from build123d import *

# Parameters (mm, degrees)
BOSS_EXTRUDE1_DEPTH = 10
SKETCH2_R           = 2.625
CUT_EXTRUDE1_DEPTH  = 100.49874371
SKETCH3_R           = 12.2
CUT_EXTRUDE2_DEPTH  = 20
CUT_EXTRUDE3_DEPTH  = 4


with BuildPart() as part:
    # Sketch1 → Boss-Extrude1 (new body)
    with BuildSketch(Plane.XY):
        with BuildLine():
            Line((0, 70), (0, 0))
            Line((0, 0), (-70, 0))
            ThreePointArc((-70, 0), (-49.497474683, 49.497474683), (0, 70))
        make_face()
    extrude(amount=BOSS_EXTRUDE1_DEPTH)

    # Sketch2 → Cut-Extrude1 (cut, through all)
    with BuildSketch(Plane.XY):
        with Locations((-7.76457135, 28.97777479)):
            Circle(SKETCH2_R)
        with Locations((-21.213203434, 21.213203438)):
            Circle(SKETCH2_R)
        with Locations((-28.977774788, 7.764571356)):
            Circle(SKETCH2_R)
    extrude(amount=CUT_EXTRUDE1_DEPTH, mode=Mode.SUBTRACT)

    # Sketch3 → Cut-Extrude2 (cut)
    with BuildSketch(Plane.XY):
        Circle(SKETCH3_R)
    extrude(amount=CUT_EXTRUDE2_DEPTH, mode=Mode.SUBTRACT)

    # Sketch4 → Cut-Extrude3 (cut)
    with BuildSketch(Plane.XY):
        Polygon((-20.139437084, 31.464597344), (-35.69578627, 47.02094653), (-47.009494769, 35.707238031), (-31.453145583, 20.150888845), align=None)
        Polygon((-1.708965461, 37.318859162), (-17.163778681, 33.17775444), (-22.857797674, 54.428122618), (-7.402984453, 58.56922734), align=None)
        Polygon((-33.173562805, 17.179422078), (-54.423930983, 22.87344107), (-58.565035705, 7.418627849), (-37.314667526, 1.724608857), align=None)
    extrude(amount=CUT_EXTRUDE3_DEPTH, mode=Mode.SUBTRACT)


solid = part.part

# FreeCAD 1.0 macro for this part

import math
import FreeCAD as App
import Part
import Sketcher
from FreeCAD import Vector
Q = App.Units.Quantity

doc = App.newDocument("Part")
body = doc.addObject("PartDesign::Body", "Body")

# Sketch on XY plane
sketch1 = body.newObject("Sketcher::SketchObject", "Sketch")
sketch1.AttachmentSupport = (doc.getObject("XY_Plane"), [""])
sketch1.MapMode = "FlatFace"
sketch1.addGeometry([
    Part.LineSegment(Vector(0, 0, 0), Vector(0, 70, 0)),
    Part.ArcOfCircle(Part.Circle(Vector(0, 0, 0), Vector(0, 0, 1), 70), math.radians(90), math.radians(180)),
    Part.LineSegment(Vector(-70, 0, 0), Vector(0, 0, 0)),
], False)
sketch1.addConstraint([
    Sketcher.Constraint("Coincident", 0, 2, 1, 1),
    Sketcher.Constraint("Coincident", 1, 2, 2, 1),
    Sketcher.Constraint("Coincident", 2, 2, 0, 1),
    Sketcher.Constraint("Vertical", 0),
    Sketcher.Constraint("Horizontal", 2),
    Sketcher.Constraint("Coincident", 1, 3, -1, 1),
    Sketcher.Constraint("Coincident", 2, 2, -1, 1),
    Sketcher.Constraint("Radius", 1, 70.0),
])
pad1 = body.newObject("PartDesign::Pad", "Pad")
pad1.Profile = sketch1
pad1.Length = 10

# Sketch on XY plane
sketch2 = body.newObject("Sketcher::SketchObject", "Sketch001")
sketch2.AttachmentSupport = (doc.getObject("XY_Plane"), [""])
sketch2.MapMode = "FlatFace"
sketch2.addGeometry([
    Part.Circle(Vector(-7.764571, 28.977775, 0), Vector(0, 0, 1), 2.625),
    Part.Circle(Vector(-21.213203, 21.213203, 0), Vector(0, 0, 1), 2.625),
    Part.Circle(Vector(-28.977775, 7.764571, 0), Vector(0, 0, 1), 2.625),
], False)
sketch2.addConstraint([
    Sketcher.Constraint("Equal", 0, 1),
    Sketcher.Constraint("Equal", 1, 2),
    Sketcher.Constraint("Diameter", 0, 5.25),
    Sketcher.Constraint("DistanceX", 0, 3, -1, 1, 7.764571),
    Sketcher.Constraint("DistanceY", -1, 1, 2, 3, 7.764571),
    Sketcher.Constraint("DistanceY", 1, 3, 0, 3, 7.764571),
    Sketcher.Constraint("DistanceX", 2, 3, 1, 3, 7.764571),
    Sketcher.Constraint("DistanceY", -1, 1, 0, 3, 28.977775),
    Sketcher.Constraint("DistanceX", 1, 3, -1, 1, 21.213203),
])
pocket1 = body.newObject("PartDesign::Pocket", "Pocket")
pocket1.Profile = sketch2
pocket1.Type = "ThroughAll"
pocket1.Reversed = True

# Sketch on XY plane
sketch3 = body.newObject("Sketcher::SketchObject", "Sketch002")
sketch3.AttachmentSupport = (doc.getObject("XY_Plane"), [""])
sketch3.MapMode = "FlatFace"
sketch3.addGeometry(Part.Circle(Vector(0, 0, 0), Vector(0, 0, 1), 12.2), False)
sketch3.addConstraint([
    Sketcher.Constraint("Coincident", 0, 3, -1, 1),
    Sketcher.Constraint("Diameter", 0, 24.4),
])
pocket2 = body.newObject("PartDesign::Pocket", "Pocket001")
pocket2.Profile = sketch3
pocket2.Length = 20
pocket2.Reversed = True

# Sketch on XY plane
sketch4 = body.newObject("Sketcher::SketchObject", "Sketch003")
sketch4.AttachmentSupport = (doc.getObject("XY_Plane"), [""])
sketch4.MapMode = "FlatFace"
sketch4.addGeometry([
    Part.LineSegment(Vector(-20.139437, 31.464597, 0), Vector(-35.695786, 47.020947, 0)),  # 0
    Part.LineSegment(Vector(-35.695786, 47.020947, 0), Vector(-47.009495, 35.707238, 0)),  # 1
    Part.LineSegment(Vector(-47.009495, 35.707238, 0), Vector(-31.453146, 20.150889, 0)),  # 2
    Part.LineSegment(Vector(-31.453146, 20.150889, 0), Vector(-20.139437, 31.464597, 0)),  # 3
    Part.LineSegment(Vector(-17.163779, 33.177754, 0), Vector(-1.708965, 37.318859, 0)),  # 4
    Part.LineSegment(Vector(-1.708965, 37.318859, 0), Vector(-7.402984, 58.569227, 0)),  # 5
    Part.LineSegment(Vector(-7.402984, 58.569227, 0), Vector(-22.857798, 54.428123, 0)),  # 6
    Part.LineSegment(Vector(-22.857798, 54.428123, 0), Vector(-17.163779, 33.177754, 0)),  # 7
    Part.LineSegment(Vector(-33.173563, 17.179422, 0), Vector(-54.423931, 22.873441, 0)),  # 8
    Part.LineSegment(Vector(-54.423931, 22.873441, 0), Vector(-58.565036, 7.418628, 0)),  # 9
    Part.LineSegment(Vector(-58.565036, 7.418628, 0), Vector(-37.314668, 1.724609, 0)),  # 10
    Part.LineSegment(Vector(-37.314668, 1.724609, 0), Vector(-33.173563, 17.179422, 0)),  # 11
], False)
sketch4.addConstraint([
    Sketcher.Constraint("Coincident", 0, 2, 1, 1),
    Sketcher.Constraint("Coincident", 1, 2, 2, 1),
    Sketcher.Constraint("Coincident", 2, 2, 3, 1),
    Sketcher.Constraint("Coincident", 3, 2, 0, 1),
    Sketcher.Constraint("Coincident", 4, 2, 5, 1),
    Sketcher.Constraint("Coincident", 5, 2, 6, 1),
    Sketcher.Constraint("Coincident", 6, 2, 7, 1),
    Sketcher.Constraint("Coincident", 7, 2, 4, 1),
    Sketcher.Constraint("Coincident", 8, 2, 9, 1),
    Sketcher.Constraint("Coincident", 9, 2, 10, 1),
    Sketcher.Constraint("Coincident", 10, 2, 11, 1),
    Sketcher.Constraint("Coincident", 11, 2, 8, 1),
    Sketcher.Constraint("Perpendicular", 0, 1),
    Sketcher.Constraint("Perpendicular", 1, 2),
    Sketcher.Constraint("Perpendicular", 2, 3),
    Sketcher.Constraint("Perpendicular", 4, 5),
    Sketcher.Constraint("Perpendicular", 5, 6),
    Sketcher.Constraint("Perpendicular", 6, 7),
    Sketcher.Constraint("Perpendicular", 8, 9),
    Sketcher.Constraint("Perpendicular", 9, 10),
    Sketcher.Constraint("Perpendicular", 10, 11),
    Sketcher.Constraint("Equal", 3, 4),
    Sketcher.Constraint("Equal", 2, 5),
    Sketcher.Constraint("Equal", 7, 8),
    Sketcher.Constraint("Equal", 6, 9),
    Sketcher.Constraint("Angle", 0, Q("135 deg")),
    Sketcher.Constraint("Angle", 4, Q("15 deg")),
    Sketcher.Constraint("Angle", 8, Q("165 deg")),
    Sketcher.Constraint("Distance", 0, 22.0),
    Sketcher.Constraint("Distance", 1, 16.0),
    Sketcher.Constraint("DistanceX", 0, 2, 5, 2, 28.292802),
    Sketcher.Constraint("DistanceX", 9, 2, 3, 2, 38.425599),
    Sketcher.Constraint("DistanceY", -1, 1, 1, 2, 35.707238),
    Sketcher.Constraint("DistanceY", -1, 1, 4, 2, 37.318859),
    Sketcher.Constraint("DistanceX", 7, 2, -1, 1, 17.163779),
    Sketcher.Constraint("DistanceY", -1, 1, 8, 2, 22.873441),
])
pocket3 = body.newObject("PartDesign::Pocket", "Pocket002")
pocket3.Profile = sketch4
pocket3.Length = 4
pocket3.Reversed = True

doc.recompute()
